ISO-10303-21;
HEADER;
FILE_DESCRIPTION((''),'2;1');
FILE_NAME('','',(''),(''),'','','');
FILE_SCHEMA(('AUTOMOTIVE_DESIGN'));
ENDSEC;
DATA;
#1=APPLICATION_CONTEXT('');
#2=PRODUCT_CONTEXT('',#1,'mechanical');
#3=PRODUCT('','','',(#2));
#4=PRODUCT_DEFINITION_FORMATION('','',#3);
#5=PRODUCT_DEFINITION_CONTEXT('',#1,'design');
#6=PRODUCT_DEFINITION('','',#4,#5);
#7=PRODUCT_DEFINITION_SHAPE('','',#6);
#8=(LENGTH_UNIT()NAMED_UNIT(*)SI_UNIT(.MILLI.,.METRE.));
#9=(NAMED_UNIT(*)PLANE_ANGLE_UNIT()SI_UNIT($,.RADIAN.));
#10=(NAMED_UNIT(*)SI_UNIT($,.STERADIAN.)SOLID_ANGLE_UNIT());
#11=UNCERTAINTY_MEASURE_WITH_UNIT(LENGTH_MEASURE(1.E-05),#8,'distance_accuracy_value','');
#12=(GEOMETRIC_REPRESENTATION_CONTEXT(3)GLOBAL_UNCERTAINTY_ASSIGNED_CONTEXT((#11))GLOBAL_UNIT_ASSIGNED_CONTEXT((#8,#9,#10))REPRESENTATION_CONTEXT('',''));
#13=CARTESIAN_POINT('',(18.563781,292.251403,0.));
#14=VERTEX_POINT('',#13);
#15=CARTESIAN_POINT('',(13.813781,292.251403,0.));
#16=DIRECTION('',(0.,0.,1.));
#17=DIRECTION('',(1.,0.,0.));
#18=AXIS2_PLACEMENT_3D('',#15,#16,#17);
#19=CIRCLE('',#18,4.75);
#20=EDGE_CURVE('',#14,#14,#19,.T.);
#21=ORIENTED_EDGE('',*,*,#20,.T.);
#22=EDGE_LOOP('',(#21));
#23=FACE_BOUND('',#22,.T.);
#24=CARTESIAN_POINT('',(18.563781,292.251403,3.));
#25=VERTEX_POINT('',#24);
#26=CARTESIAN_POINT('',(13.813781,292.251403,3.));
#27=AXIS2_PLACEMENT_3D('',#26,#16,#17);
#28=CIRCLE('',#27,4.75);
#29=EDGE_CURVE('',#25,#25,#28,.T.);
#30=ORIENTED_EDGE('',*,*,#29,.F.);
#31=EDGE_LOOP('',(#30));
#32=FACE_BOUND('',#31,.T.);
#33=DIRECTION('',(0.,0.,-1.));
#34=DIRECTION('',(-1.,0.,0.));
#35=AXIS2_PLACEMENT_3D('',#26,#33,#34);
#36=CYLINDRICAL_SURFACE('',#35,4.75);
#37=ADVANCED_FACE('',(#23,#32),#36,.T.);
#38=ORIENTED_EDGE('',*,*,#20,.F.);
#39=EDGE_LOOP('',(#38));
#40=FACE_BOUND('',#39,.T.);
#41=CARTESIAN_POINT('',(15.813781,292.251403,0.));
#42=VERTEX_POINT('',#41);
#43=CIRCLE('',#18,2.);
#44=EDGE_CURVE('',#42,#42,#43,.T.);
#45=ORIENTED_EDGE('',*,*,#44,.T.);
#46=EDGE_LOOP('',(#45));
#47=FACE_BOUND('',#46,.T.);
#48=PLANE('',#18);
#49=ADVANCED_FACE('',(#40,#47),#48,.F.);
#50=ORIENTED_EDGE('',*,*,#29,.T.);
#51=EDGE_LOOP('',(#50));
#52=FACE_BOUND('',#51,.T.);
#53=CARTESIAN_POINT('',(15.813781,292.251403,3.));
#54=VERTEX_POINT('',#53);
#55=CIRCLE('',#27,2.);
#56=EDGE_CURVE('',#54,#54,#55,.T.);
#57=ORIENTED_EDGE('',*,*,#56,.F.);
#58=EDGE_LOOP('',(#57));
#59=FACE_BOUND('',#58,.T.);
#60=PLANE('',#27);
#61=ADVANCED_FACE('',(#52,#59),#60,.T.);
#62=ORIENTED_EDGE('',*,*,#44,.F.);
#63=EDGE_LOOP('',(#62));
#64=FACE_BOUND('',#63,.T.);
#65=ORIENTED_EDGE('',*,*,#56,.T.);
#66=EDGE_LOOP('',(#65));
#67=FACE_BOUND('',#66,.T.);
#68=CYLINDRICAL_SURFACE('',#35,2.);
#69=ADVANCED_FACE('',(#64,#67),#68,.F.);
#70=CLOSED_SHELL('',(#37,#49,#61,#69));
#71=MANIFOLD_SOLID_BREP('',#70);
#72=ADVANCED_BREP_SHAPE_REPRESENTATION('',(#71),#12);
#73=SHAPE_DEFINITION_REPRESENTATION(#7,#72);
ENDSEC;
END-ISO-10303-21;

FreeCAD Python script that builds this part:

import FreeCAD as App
import Part
import Sketcher
from FreeCAD import Vector
Q = App.Units.Quantity

doc = App.newDocument("Part")
body = doc.addObject("PartDesign::Body", "Body")

sketch1 = doc.addObject("Sketcher::SketchObject", "Sketch")
body.addObject(sketch1)
sketch1.AttachmentSupport = (doc.XY_Plane, [""])
sketch1.MapMode = "FlatFace"
sketch1.addGeometry([
    Part.Circle(Vector(13.8, 292.3, 0), Vector(0, 0, 1), 4.8),
    Part.Circle(Vector(13.8, 292.3, 0), Vector(0, 0, 1), 2),
], False)
sketch1.addConstraint([
    Sketcher.Constraint("Coincident", 1, 3, 0, 3),
    Sketcher.Constraint("Diameter", 1, Q("4 mm")),
    Sketcher.Constraint("Diameter", 0, Q("9.5 mm")),
    Sketcher.Constraint("DistanceX", -1, 1, 0, 3, Q("13.813781 mm")),
    Sketcher.Constraint("DistanceY", -1, 1, 0, 3, Q("292.251403 mm")),
])
pad1 = doc.addObject("PartDesign::Pad", "Pad")
body.addObject(pad1)
pad1.Profile = sketch1
pad1.Length = 3

doc.recompute()
